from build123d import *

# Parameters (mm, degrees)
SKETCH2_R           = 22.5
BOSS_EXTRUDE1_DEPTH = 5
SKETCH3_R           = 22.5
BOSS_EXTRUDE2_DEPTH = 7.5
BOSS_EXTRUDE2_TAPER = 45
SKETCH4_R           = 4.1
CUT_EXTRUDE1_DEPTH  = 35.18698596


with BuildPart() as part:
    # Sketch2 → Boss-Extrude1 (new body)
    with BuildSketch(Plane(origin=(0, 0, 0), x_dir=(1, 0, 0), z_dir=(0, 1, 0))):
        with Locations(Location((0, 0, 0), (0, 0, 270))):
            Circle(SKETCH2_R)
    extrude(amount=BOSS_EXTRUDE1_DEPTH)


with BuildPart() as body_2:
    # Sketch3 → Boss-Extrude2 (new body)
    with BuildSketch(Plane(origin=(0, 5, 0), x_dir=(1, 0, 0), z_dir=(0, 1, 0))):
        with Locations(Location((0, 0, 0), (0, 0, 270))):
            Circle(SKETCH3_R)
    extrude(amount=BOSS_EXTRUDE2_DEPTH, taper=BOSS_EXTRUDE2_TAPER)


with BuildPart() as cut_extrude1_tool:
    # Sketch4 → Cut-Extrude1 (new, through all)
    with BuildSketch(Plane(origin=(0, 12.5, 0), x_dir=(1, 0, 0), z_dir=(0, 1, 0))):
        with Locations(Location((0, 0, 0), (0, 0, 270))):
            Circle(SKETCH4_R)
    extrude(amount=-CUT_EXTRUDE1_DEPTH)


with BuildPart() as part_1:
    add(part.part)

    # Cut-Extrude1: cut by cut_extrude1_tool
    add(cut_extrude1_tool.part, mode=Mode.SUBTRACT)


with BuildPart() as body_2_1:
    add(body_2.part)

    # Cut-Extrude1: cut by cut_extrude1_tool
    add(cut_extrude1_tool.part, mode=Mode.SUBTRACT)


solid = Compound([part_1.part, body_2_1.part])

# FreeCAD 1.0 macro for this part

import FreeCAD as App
import Part
import Sketcher
Q = App.Units.Quantity

doc = App.newDocument("Part")
body = doc.addObject("PartDesign::Body", "Body")

sketch1 = body.newObject("Sketcher::SketchObject", "Sketch")
sketch1.AttachmentSupport = (doc.getObject("XZ_Plane"), [""])
sketch1.MapMode = "FlatFace"
sketch1.addGeometry(Part.Circle(App.Vector(0, 0, 0), App.Vector(0, 0, 1), 22), False)
sketch1.addConstraint(Sketcher.Constraint("Coincident", 0, 3, -1, 1))
sketch1.addConstraint(Sketcher.Constraint("Diameter", 0, Q("45 mm")))
pad1 = body.newObject("PartDesign::Pad", "Pad")
pad1.Profile = sketch1
pad1.Length = 5
pad1.Reversed = True
body2 = doc.addObject("PartDesign::Body", "Body001")

sketch2 = body2.newObject("Sketcher::SketchObject", "Sketch001")
sketch2.AttachmentSupport = (doc.getObject("XZ_Plane001"), [""])
sketch2.MapMode = "FlatFace"
sketch2.AttachmentOffset = App.Placement(App.Vector(0, 0, -5), App.Rotation())
sketch2.addGeometry(Part.Circle(App.Vector(0, 0, 0), App.Vector(0, 0, 1), 22), False)
sketch2.addConstraint(Sketcher.Constraint("Coincident", 0, 3, -1, 1))
sketch2.addConstraint(Sketcher.Constraint("Diameter", 0, Q("45 mm")))
pad2 = body2.newObject("PartDesign::Pad", "Pad001")
pad2.Profile = sketch2
pad2.Length = 7.5
pad2.Reversed = True
pad2.TaperAngle = -45
body3 = doc.addObject("PartDesign::Body", "Body002")

sketch3 = body3.newObject("Sketcher::SketchObject", "Sketch002")
sketch3.AttachmentSupport = (doc.getObject("XZ_Plane002"), [""])
sketch3.MapMode = "FlatFace"
sketch3.AttachmentOffset = App.Placement(App.Vector(0, 0, -12.5), App.Rotation())
sketch3.addGeometry(Part.Circle(App.Vector(0, 0, 0), App.Vector(0, 0, 1), 4.1), False)
sketch3.addConstraint(Sketcher.Constraint("Coincident", 0, 3, -1, 1))
sketch3.addConstraint(Sketcher.Constraint("Diameter", 0, Q("8.2 mm")))
pad3 = body3.newObject("PartDesign::Pad", "Pad002")
pad3.Profile = sketch3
pad3.Length = 35.186986
doc.recompute()

body4 = doc.addObject("PartDesign::Body", "Body003")
body4.BaseFeature = body3
boolean = body.newObject("PartDesign::Boolean", "Boolean")
boolean.Type = "Cut"
boolean.addObjects([body4])
doc.recompute()

boolean2 = body2.newObject("PartDesign::Boolean", "Boolean001")
boolean2.Type = "Cut"
boolean2.addObjects([body3])

doc.recompute()
